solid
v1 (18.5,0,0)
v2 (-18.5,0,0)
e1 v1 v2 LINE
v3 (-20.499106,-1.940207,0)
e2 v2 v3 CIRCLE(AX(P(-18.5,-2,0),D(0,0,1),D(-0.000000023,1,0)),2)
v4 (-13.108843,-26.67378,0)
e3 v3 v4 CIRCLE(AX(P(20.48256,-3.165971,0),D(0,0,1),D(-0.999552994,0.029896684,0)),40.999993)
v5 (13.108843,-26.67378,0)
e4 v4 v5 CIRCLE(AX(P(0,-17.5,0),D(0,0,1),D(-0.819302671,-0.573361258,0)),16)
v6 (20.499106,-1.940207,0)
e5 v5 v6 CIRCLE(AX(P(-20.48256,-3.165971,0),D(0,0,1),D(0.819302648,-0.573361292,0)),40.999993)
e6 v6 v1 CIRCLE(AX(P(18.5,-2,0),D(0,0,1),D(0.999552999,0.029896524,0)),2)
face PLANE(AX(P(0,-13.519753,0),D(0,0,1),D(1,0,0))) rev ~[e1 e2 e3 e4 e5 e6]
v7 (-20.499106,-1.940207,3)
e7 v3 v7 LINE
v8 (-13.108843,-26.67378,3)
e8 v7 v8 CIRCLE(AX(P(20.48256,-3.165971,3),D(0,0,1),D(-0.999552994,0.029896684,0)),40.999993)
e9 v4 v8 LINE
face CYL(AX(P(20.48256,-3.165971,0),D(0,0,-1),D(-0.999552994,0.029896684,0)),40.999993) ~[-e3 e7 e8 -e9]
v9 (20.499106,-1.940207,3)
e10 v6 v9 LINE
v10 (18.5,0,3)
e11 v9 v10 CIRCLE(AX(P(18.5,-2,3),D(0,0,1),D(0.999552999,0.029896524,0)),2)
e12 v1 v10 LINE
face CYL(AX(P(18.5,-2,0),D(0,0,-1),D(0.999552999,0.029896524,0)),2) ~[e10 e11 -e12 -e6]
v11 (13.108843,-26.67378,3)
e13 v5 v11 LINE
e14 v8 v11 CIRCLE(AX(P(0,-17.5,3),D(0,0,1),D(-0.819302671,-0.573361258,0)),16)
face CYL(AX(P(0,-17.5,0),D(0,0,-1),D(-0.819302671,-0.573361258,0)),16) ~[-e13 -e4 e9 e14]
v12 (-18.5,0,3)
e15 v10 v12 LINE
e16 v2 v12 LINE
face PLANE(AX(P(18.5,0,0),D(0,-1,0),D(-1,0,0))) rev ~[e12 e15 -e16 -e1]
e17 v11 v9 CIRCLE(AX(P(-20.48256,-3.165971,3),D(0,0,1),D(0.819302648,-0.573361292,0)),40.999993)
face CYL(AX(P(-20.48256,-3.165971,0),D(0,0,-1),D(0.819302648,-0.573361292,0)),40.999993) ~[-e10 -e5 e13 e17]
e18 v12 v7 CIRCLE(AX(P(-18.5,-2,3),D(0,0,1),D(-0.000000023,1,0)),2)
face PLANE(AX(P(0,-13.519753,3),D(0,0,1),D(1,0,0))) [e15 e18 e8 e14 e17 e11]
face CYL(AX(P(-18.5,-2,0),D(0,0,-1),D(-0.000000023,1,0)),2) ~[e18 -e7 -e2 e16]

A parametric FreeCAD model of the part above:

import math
import FreeCAD as App
import Part
import Sketcher
from FreeCAD import Vector
Q = App.Units.Quantity

doc = App.newDocument("Part")
params = doc.addObject("Spreadsheet::Sheet", "Params")
for row, (alias, value) in enumerate([
    ("sketch1_radius", "2 mm"),
    ("sketch1_radius2", "16 mm"),
    ("sketch1_width", "37 mm"),
    ("pad1_length", "3 mm"),
], start=1):
    params.set(f"A{row}", alias)
    params.set(f"B{row}", "=" + value)
    params.setAlias(f"B{row}", alias)

body = doc.addObject("PartDesign::Body", "Body")

# Sketch on XY plane
sketch1 = body.newObject("Sketcher::SketchObject", "Sketch")
sketch1.AttachmentSupport = (doc.getObject("XY_Plane"), [""])
sketch1.MapMode = "FlatFace"
sketch1.addGeometry([
    Part.ArcOfCircle(Part.Circle(Vector(-18.5, -2, 0), Vector(0, 0, 1), 2), math.radians(90.000001), math.radians(178.2868)),  # 0
    Part.ArcOfCircle(Part.Circle(Vector(20.48256, -3.165971, 0), Vector(0, 0, 1), 40.999993), math.radians(178.286791), math.radians(214.984953)),  # 1
    Part.ArcOfCircle(Part.Circle(Vector(0, -17.5, 0), Vector(0, 0, 1), 16), math.radians(-145.015049), math.radians(-34.984951)),  # 2
    Part.ArcOfCircle(Part.Circle(Vector(-20.48256, -3.165971, 0), Vector(0, 0, 1), 40.999993), math.radians(-34.984953), math.radians(1.713209)),  # 3
    Part.ArcOfCircle(Part.Circle(Vector(18.5, -2, 0), Vector(0, 0, 1), 2), math.radians(1.7132), math.radians(89.999999)),  # 4
    Part.LineSegment(Vector(18.5, 0, 0), Vector(-18.5, 0, 0)),  # 5
], False)
sketch1.addConstraint([
    Sketcher.Constraint("Tangent", 0, 2, 1, 1),
    Sketcher.Constraint("Tangent", 1, 2, 2, 1),
    Sketcher.Constraint("Tangent", 2, 2, 3, 1),
    Sketcher.Constraint("Tangent", 3, 2, 4, 1),
    Sketcher.Constraint("Tangent", 4, 2, 5, 1),
    Sketcher.Constraint("Tangent", 5, 2, 0, 1),
    Sketcher.Constraint("Horizontal", 5),
    Sketcher.Constraint("Equal", 1, 3),
    Sketcher.Constraint("Equal", 0, 4),
    Sketcher.Constraint("Symmetric", 4, 2, 5, 2, -1, 1),
    Sketcher.Constraint("PointOnObject", 2, 3, -2),
    Sketcher.Constraint("Radius", 0, Q("2 mm")),
    Sketcher.Constraint("Radius", 2, Q("16 mm")),
    Sketcher.Constraint("DistanceX", 5, 2, 5, 1, Q("37 mm")),
    Sketcher.Constraint("DistanceY", 2, 3, -1, 1, Q("17.5 mm")),
    Sketcher.Constraint("Radius", 1, Q("40.999993 mm")),
])
sketch1.setExpression("Constraints[11]", "Params.sketch1_radius")
sketch1.setExpression("Constraints[12]", "Params.sketch1_radius2")
sketch1.setExpression("Constraints[13]", "Params.sketch1_width")
pad1 = body.newObject("PartDesign::Pad", "Pad")
pad1.Profile = sketch1
pad1.setExpression("Length", "Params.pad1_length")

doc.recompute()
